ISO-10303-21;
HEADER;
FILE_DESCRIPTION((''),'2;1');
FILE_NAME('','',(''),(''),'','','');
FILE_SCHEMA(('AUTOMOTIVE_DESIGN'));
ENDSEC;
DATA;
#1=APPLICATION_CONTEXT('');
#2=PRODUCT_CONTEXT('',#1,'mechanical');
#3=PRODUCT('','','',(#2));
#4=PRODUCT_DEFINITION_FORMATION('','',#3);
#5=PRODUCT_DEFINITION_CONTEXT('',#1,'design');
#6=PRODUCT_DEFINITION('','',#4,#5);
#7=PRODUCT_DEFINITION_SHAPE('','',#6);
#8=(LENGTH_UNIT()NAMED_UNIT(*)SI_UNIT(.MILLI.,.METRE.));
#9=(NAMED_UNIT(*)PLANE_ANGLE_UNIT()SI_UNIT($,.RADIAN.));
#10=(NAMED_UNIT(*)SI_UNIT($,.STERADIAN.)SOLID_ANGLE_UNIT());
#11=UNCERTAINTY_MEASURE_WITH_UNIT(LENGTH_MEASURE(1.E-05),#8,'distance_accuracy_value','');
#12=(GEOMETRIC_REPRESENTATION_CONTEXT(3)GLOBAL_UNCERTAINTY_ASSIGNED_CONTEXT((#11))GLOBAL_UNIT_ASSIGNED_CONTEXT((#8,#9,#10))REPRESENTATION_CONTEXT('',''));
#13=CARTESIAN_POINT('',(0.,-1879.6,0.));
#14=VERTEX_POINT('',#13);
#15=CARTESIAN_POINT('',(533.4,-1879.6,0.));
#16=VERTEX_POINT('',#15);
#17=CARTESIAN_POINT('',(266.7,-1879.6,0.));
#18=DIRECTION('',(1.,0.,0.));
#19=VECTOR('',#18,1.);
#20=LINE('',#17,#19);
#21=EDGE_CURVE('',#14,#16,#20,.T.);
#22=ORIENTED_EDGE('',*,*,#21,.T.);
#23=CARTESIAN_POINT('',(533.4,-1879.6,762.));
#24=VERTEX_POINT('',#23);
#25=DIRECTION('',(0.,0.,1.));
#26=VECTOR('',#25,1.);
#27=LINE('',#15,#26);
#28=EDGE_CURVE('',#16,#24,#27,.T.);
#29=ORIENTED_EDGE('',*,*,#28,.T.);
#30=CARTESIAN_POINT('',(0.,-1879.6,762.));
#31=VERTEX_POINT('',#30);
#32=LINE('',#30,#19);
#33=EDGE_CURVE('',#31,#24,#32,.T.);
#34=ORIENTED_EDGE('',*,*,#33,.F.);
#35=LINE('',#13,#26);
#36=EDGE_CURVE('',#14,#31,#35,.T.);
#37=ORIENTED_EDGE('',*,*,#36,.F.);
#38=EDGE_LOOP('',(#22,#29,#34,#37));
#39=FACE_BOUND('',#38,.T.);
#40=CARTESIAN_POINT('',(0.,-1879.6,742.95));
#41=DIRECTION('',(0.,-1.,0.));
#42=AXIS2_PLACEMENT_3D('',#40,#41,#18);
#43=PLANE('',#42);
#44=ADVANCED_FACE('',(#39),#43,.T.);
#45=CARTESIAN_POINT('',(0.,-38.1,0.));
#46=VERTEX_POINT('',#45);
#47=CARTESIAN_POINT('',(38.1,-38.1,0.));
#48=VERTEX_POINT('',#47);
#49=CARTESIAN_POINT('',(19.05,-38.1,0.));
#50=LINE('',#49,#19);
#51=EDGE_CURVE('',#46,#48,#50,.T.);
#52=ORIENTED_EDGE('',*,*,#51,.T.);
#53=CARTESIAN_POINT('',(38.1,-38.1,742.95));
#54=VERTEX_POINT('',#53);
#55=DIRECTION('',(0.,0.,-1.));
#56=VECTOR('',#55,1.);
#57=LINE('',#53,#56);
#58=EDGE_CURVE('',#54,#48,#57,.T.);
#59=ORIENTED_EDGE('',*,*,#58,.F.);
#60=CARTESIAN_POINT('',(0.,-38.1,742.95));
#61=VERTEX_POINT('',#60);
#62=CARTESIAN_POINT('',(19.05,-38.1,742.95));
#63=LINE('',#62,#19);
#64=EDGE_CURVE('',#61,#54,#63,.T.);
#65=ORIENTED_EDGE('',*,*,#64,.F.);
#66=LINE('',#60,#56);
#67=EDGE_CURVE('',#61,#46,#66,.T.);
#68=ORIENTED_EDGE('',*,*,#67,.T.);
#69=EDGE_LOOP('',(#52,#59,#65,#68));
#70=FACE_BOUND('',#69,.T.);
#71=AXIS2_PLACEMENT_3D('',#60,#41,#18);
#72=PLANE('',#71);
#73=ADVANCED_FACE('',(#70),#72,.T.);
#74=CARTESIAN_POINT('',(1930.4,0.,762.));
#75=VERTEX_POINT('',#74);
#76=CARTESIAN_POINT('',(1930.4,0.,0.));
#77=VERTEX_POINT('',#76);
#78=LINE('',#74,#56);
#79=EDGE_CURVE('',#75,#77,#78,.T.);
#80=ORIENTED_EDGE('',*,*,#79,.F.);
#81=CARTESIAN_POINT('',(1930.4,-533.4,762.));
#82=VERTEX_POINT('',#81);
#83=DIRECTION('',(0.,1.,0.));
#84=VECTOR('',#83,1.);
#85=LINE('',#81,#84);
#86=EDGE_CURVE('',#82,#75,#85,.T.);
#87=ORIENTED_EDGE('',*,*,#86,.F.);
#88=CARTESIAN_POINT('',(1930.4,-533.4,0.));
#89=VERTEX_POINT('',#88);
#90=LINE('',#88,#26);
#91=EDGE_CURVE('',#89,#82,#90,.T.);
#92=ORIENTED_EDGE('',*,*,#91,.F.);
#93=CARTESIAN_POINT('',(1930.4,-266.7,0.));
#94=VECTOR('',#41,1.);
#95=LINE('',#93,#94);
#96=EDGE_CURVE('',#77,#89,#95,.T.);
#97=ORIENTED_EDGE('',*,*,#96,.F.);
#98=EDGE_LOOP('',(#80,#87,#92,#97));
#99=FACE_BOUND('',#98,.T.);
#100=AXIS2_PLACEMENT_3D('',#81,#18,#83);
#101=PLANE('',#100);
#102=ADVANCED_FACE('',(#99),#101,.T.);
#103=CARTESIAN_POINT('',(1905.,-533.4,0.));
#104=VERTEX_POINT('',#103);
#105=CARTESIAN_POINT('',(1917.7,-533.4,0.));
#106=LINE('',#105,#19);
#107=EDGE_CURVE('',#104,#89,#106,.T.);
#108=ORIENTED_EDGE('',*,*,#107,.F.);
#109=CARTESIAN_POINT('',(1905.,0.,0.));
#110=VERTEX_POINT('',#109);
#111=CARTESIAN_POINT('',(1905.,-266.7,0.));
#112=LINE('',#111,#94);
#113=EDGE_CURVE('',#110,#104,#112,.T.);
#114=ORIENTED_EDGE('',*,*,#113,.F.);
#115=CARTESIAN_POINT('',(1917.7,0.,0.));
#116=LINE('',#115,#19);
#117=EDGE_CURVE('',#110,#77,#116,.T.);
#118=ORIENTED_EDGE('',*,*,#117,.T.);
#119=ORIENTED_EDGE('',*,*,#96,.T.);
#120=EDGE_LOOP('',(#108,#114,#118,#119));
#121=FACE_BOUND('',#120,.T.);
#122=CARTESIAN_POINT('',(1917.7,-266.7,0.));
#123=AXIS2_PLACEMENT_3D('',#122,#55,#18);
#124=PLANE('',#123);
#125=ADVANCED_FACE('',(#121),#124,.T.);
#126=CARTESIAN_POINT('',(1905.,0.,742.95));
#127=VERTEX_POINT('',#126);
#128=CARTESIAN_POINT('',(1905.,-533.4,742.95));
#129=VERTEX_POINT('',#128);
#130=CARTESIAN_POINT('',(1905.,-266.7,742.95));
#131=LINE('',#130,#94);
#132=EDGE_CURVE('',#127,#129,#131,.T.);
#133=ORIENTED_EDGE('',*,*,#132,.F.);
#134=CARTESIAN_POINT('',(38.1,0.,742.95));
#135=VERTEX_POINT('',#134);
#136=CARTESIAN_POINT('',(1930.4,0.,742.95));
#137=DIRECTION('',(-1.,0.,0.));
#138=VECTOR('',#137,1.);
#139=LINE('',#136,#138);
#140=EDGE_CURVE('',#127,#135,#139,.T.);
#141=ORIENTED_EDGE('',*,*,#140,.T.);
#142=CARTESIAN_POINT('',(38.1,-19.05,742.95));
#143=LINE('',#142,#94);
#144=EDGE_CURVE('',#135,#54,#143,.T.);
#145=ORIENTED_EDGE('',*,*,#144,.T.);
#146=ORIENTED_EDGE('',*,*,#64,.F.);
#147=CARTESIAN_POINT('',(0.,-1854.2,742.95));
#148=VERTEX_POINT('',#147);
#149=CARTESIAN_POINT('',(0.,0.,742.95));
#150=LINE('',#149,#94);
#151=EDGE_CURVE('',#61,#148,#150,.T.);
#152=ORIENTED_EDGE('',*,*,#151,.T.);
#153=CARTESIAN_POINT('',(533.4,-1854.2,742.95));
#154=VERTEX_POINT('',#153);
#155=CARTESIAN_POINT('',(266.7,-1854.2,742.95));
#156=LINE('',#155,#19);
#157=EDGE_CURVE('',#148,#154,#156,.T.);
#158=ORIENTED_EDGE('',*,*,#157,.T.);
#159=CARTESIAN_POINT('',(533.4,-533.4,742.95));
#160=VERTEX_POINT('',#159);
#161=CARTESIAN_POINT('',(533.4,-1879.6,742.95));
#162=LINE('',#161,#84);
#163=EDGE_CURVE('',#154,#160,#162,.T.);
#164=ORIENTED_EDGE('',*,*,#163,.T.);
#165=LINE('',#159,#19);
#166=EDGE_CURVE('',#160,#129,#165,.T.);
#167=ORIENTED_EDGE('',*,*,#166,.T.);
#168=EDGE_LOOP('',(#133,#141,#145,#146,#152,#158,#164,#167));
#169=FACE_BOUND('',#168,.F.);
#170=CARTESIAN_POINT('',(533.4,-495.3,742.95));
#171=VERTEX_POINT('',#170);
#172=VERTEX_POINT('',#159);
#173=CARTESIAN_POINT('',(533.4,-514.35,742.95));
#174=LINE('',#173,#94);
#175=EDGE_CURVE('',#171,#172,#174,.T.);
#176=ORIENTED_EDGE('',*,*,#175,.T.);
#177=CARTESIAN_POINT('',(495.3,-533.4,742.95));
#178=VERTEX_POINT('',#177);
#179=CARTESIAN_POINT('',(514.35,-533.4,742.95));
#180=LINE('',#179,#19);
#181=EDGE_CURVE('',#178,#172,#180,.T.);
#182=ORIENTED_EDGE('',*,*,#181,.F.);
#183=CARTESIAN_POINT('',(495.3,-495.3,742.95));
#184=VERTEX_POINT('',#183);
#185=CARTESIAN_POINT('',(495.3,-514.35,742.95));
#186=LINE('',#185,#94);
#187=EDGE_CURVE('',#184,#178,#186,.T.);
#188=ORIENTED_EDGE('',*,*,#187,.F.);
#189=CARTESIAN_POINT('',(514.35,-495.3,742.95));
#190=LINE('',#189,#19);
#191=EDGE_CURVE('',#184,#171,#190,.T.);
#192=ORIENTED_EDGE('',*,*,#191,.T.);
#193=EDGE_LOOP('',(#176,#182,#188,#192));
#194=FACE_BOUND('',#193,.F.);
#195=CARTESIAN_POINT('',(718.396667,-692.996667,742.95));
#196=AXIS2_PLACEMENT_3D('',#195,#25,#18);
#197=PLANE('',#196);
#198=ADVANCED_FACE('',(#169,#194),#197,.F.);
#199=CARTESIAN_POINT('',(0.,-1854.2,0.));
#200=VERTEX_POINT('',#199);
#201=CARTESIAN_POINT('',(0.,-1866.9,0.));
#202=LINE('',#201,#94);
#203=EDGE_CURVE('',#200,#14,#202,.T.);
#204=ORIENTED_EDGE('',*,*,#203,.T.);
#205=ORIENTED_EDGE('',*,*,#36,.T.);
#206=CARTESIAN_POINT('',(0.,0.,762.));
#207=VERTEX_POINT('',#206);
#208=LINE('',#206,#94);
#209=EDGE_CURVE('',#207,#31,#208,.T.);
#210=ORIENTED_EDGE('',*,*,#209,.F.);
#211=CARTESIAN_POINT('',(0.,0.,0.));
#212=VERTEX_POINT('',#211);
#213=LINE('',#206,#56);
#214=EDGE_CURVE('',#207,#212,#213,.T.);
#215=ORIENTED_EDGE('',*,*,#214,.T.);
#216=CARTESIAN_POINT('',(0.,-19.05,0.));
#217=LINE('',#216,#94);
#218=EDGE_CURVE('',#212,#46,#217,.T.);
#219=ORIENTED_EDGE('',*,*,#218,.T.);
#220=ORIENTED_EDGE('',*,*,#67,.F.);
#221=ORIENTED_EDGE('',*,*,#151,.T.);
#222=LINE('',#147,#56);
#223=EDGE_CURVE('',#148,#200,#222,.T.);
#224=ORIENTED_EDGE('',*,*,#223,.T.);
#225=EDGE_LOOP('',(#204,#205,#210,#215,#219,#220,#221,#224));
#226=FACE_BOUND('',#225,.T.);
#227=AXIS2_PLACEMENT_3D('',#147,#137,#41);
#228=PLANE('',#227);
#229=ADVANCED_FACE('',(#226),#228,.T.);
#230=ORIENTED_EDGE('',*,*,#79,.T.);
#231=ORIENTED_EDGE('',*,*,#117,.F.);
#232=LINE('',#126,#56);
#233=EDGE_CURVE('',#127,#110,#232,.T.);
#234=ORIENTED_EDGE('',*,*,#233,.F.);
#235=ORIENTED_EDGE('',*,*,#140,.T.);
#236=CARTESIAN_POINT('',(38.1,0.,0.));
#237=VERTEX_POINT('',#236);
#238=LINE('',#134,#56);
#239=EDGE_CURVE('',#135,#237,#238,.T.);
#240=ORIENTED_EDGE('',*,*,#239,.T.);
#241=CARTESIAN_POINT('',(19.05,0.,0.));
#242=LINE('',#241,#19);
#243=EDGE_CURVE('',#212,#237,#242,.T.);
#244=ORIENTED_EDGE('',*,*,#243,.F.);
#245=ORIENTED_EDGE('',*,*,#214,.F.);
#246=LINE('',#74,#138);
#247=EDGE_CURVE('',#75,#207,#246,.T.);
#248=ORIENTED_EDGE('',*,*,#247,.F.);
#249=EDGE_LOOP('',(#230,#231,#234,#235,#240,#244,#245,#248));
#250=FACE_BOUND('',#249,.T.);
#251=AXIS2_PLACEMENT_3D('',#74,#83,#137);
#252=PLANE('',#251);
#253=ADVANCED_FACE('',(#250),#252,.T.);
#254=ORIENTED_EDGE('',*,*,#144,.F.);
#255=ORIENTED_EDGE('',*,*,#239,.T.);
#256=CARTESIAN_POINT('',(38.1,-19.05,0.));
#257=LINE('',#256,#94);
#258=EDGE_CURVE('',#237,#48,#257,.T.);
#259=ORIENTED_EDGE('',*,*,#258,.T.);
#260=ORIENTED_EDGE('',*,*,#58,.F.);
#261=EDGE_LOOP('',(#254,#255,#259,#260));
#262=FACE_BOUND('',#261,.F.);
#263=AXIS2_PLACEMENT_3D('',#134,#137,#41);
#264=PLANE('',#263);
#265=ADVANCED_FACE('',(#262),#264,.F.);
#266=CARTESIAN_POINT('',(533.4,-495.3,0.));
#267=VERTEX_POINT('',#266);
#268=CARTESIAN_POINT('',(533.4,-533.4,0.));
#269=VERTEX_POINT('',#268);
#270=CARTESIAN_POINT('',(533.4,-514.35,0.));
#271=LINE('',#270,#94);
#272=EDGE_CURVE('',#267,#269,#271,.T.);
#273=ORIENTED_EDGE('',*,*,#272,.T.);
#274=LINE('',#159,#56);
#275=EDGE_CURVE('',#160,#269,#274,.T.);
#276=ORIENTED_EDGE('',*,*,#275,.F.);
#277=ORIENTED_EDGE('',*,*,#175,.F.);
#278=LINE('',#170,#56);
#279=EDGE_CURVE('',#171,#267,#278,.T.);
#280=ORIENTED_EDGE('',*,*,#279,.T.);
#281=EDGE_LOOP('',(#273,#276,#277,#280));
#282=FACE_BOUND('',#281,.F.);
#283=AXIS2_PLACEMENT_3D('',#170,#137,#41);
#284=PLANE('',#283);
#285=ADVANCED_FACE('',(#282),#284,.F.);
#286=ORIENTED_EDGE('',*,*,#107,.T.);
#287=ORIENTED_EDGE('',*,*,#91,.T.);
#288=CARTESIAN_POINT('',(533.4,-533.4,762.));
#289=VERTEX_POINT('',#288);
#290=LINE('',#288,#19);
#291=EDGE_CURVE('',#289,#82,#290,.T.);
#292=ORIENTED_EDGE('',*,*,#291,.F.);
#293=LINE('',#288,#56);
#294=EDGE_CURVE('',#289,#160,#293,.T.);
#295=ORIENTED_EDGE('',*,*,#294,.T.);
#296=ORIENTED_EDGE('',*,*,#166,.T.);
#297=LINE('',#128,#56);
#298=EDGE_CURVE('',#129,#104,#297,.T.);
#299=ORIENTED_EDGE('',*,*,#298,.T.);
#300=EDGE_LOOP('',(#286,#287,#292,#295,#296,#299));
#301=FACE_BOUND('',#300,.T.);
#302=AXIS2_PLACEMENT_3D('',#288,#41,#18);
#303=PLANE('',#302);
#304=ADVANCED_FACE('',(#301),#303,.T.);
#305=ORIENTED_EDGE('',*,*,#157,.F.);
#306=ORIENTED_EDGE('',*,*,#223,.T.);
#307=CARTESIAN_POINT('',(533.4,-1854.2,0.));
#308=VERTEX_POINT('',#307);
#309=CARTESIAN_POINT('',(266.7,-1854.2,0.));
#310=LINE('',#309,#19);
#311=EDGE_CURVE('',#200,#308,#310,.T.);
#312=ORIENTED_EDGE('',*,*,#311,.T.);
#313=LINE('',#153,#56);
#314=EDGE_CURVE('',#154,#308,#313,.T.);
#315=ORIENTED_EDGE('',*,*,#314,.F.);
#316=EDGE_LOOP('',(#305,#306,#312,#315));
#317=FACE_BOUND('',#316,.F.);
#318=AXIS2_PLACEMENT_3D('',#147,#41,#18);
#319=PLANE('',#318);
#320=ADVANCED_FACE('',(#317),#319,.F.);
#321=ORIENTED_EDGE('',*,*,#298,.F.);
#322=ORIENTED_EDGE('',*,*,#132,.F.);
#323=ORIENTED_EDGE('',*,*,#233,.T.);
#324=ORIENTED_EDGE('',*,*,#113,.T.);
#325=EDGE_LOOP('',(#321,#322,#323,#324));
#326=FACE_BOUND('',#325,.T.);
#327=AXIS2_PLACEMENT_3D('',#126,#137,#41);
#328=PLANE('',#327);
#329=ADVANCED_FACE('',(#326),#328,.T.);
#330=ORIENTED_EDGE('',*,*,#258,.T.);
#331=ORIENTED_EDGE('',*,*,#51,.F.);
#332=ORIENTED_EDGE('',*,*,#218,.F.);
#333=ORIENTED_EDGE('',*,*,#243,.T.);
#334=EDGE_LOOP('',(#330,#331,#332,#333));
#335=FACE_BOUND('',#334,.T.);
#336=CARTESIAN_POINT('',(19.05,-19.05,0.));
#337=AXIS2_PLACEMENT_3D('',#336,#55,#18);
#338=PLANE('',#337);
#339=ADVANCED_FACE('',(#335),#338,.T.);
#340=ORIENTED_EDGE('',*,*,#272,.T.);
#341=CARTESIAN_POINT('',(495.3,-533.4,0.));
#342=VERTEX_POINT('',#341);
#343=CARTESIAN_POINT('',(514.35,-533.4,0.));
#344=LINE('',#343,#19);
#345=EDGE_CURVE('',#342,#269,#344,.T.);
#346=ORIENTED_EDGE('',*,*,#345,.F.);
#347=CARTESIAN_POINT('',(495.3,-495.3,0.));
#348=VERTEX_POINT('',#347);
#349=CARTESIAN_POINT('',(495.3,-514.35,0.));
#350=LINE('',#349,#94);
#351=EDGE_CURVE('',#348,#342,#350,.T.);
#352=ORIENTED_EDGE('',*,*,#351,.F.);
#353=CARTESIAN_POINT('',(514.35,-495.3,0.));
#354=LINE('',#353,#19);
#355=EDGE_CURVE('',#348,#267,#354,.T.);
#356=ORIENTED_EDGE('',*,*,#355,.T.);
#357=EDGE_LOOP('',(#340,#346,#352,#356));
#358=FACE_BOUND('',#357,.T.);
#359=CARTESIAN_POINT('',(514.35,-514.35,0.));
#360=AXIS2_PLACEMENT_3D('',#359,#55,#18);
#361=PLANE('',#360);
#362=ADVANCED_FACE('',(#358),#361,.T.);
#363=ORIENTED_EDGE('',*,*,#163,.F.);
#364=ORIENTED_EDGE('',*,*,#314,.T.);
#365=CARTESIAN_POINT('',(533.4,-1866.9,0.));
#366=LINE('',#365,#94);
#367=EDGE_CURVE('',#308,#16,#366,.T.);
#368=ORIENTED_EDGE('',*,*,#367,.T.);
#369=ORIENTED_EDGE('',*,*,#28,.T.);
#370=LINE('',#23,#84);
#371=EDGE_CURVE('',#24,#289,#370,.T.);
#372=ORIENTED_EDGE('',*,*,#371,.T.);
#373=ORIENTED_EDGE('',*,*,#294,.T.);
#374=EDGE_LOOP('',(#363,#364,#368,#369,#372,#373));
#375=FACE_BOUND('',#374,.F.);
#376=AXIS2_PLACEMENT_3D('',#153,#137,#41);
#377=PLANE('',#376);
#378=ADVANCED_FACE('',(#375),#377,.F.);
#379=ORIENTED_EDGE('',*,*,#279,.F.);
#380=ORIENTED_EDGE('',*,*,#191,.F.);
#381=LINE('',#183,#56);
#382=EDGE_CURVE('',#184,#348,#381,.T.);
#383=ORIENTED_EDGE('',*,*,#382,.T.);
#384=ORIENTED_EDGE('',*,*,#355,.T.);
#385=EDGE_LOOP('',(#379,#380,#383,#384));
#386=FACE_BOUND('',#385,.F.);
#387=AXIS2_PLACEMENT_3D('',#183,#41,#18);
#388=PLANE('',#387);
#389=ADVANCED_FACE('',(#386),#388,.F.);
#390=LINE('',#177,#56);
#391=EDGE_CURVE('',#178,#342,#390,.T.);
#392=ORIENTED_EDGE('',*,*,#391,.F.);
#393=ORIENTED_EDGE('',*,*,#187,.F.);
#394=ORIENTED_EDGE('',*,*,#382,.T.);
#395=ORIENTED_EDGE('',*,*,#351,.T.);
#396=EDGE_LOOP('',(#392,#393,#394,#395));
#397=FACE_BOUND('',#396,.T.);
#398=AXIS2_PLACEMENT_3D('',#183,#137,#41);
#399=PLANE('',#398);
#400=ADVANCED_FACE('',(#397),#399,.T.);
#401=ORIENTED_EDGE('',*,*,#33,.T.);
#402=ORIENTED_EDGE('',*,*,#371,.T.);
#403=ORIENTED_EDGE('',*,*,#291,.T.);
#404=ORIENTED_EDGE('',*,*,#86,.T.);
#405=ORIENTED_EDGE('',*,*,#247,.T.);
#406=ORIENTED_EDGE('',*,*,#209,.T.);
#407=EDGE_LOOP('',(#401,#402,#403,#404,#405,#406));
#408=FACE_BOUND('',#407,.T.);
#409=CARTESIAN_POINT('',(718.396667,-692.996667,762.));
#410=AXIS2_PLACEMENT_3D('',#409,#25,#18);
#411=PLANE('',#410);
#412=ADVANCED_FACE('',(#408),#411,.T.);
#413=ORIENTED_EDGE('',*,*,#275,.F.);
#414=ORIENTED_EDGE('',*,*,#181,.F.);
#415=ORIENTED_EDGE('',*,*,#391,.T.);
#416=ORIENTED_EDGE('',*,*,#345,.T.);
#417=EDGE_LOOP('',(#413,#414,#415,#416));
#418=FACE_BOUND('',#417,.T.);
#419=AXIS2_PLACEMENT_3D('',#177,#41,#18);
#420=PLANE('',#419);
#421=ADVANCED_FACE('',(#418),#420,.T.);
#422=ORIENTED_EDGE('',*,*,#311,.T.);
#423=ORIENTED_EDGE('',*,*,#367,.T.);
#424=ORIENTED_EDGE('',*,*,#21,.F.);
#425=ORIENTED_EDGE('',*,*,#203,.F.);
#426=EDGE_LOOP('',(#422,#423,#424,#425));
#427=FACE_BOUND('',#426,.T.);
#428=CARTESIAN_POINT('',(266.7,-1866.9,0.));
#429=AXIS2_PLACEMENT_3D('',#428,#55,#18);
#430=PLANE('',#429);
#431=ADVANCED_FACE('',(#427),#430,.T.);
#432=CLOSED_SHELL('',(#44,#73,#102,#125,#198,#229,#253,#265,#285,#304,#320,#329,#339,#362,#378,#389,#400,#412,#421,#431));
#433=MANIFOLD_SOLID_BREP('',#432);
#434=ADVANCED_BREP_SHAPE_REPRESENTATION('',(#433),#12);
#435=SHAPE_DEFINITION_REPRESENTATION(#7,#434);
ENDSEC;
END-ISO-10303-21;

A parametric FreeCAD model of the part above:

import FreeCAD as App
import Part
import Sketcher
from FreeCAD import Vector
Q = App.Units.Quantity


def add_polygon(sketch, points):
    """Adds a closed chain of lines whose ends are joined by coincident constraints."""
    first, n = sketch.GeometryCount, len(points)
    for a, b in zip(points, points[1:] + points[:1]):
        sketch.addGeometry(Part.LineSegment(App.Vector(*a, 0), App.Vector(*b, 0)), False)
    for i in range(n):
        sketch.addConstraint(Sketcher.Constraint("Coincident", first + i, 2, first + (i + 1) % n, 1))

doc = App.newDocument("Part")
body = doc.addObject("PartDesign::Body", "Body")

# Sketch on XY plane
sketch1 = doc.addObject("Sketcher::SketchObject", "Sketch")
body.addObject(sketch1)
sketch1.AttachmentSupport = (doc.XY_Plane, [""])
sketch1.MapMode = "FlatFace"
sketch1.AttachmentOffset = App.Placement(Vector(0, 0, 30 * 25.4), App.Rotation())
add_polygon(sketch1, [(1930, 0), (0, 0), (0, -1880), (533, -1880), (533, -533), (1930, -533)])  # lines 0-5
sketch1.addConstraint([
    Sketcher.Constraint("Horizontal", 0),
    Sketcher.Constraint("Vertical", 1),
    Sketcher.Constraint("Horizontal", 2),
    Sketcher.Constraint("Vertical", 3),
    Sketcher.Constraint("Horizontal", 4),
    Sketcher.Constraint("Vertical", 5),
    Sketcher.Constraint("Coincident", 0, 2, -1, 1),
    Sketcher.Constraint("Equal", 2, 5),
    Sketcher.Constraint("DistanceX", 0, 2, 0, 1, Q("76 in")),
    Sketcher.Constraint("DistanceX", 2, 1, 2, 2, Q("21 in")),
    Sketcher.Constraint("DistanceY", 1, 2, 1, 1, Q("74 in")),
])
pad1 = doc.addObject("PartDesign::Pad", "Pad")
body.addObject(pad1)
pad1.Profile = sketch1
pad1.Length = Q("0.75 in")
pad1.Reversed = True

# Sketch on XY plane
sketch2 = doc.addObject("Sketcher::SketchObject", "Sketch001")
body.addObject(sketch2)
sketch2.AttachmentSupport = (doc.XY_Plane, [""])
sketch2.MapMode = "FlatFace"
sketch2.AttachmentOffset = App.Placement(Vector(0, 0, 29.25 * 25.4), App.Rotation())
add_polygon(sketch2, [(0, -1880), (0, -1854), (533, -1854), (533, -1880)])  # lines 0-3
add_polygon(sketch2, [(1905, -533), (1905, 0), (1930, 0), (1930, -533)])  # lines 4-7
add_polygon(sketch2, [(495, -533), (495, -495), (533, -495), (533, -533)])  # lines 8-11
add_polygon(sketch2, [(0, -38), (0, 0), (38, 0), (38, -38)])  # lines 12-15
sketch2.addConstraint([
    Sketcher.Constraint("Vertical", 0),
    Sketcher.Constraint("Horizontal", 1),
    Sketcher.Constraint("Vertical", 2),
    Sketcher.Constraint("Horizontal", 3),
    Sketcher.Constraint("Vertical", 4),
    Sketcher.Constraint("Horizontal", 5),
    Sketcher.Constraint("Vertical", 6),
    Sketcher.Constraint("Horizontal", 7),
    Sketcher.Constraint("Vertical", 8),
    Sketcher.Constraint("Horizontal", 9),
    Sketcher.Constraint("Vertical", 10),
    Sketcher.Constraint("Horizontal", 11),
    Sketcher.Constraint("Vertical", 12),
    Sketcher.Constraint("Horizontal", 13),
    Sketcher.Constraint("Vertical", 14),
    Sketcher.Constraint("Horizontal", 15),
    Sketcher.Constraint("Coincident", 12, 2, -1, 1),
    Sketcher.Constraint("PointOnObject", 0, 2, -2),
    Sketcher.Constraint("PointOnObject", 4, 2, -1),
    Sketcher.Constraint("Horizontal", 7, 2, 10, 2),
    Sketcher.Constraint("Vertical", 2, 2, 9, 2),
    Sketcher.Constraint("Equal", 11, 13),
    Sketcher.Constraint("Equal", 7, 0),
    Sketcher.Constraint("Equal", 3, 4),
    Sketcher.Constraint("Equal", 15, 8),
    Sketcher.Constraint("Equal", 10, 12),
    Sketcher.Constraint("DistanceX", 1, 1, 1, 2, Q("21 in")),
    Sketcher.Constraint("DistanceX", 5, 1, 5, 2, Q("1 in")),
    Sketcher.Constraint("DistanceX", 9, 1, 9, 2, Q("1.5 in")),
    Sketcher.Constraint("DistanceY", 0, 2, -1, 1, Q("73 in")),
    Sketcher.Constraint("DistanceX", -1, 1, 4, 2, Q("75 in")),
])
pad2 = doc.addObject("PartDesign::Pad", "Pad001")
body.addObject(pad2)
pad2.Profile = sketch2
pad2.Length = Q("29.25 in")
pad2.Reversed = True

doc.recompute()
